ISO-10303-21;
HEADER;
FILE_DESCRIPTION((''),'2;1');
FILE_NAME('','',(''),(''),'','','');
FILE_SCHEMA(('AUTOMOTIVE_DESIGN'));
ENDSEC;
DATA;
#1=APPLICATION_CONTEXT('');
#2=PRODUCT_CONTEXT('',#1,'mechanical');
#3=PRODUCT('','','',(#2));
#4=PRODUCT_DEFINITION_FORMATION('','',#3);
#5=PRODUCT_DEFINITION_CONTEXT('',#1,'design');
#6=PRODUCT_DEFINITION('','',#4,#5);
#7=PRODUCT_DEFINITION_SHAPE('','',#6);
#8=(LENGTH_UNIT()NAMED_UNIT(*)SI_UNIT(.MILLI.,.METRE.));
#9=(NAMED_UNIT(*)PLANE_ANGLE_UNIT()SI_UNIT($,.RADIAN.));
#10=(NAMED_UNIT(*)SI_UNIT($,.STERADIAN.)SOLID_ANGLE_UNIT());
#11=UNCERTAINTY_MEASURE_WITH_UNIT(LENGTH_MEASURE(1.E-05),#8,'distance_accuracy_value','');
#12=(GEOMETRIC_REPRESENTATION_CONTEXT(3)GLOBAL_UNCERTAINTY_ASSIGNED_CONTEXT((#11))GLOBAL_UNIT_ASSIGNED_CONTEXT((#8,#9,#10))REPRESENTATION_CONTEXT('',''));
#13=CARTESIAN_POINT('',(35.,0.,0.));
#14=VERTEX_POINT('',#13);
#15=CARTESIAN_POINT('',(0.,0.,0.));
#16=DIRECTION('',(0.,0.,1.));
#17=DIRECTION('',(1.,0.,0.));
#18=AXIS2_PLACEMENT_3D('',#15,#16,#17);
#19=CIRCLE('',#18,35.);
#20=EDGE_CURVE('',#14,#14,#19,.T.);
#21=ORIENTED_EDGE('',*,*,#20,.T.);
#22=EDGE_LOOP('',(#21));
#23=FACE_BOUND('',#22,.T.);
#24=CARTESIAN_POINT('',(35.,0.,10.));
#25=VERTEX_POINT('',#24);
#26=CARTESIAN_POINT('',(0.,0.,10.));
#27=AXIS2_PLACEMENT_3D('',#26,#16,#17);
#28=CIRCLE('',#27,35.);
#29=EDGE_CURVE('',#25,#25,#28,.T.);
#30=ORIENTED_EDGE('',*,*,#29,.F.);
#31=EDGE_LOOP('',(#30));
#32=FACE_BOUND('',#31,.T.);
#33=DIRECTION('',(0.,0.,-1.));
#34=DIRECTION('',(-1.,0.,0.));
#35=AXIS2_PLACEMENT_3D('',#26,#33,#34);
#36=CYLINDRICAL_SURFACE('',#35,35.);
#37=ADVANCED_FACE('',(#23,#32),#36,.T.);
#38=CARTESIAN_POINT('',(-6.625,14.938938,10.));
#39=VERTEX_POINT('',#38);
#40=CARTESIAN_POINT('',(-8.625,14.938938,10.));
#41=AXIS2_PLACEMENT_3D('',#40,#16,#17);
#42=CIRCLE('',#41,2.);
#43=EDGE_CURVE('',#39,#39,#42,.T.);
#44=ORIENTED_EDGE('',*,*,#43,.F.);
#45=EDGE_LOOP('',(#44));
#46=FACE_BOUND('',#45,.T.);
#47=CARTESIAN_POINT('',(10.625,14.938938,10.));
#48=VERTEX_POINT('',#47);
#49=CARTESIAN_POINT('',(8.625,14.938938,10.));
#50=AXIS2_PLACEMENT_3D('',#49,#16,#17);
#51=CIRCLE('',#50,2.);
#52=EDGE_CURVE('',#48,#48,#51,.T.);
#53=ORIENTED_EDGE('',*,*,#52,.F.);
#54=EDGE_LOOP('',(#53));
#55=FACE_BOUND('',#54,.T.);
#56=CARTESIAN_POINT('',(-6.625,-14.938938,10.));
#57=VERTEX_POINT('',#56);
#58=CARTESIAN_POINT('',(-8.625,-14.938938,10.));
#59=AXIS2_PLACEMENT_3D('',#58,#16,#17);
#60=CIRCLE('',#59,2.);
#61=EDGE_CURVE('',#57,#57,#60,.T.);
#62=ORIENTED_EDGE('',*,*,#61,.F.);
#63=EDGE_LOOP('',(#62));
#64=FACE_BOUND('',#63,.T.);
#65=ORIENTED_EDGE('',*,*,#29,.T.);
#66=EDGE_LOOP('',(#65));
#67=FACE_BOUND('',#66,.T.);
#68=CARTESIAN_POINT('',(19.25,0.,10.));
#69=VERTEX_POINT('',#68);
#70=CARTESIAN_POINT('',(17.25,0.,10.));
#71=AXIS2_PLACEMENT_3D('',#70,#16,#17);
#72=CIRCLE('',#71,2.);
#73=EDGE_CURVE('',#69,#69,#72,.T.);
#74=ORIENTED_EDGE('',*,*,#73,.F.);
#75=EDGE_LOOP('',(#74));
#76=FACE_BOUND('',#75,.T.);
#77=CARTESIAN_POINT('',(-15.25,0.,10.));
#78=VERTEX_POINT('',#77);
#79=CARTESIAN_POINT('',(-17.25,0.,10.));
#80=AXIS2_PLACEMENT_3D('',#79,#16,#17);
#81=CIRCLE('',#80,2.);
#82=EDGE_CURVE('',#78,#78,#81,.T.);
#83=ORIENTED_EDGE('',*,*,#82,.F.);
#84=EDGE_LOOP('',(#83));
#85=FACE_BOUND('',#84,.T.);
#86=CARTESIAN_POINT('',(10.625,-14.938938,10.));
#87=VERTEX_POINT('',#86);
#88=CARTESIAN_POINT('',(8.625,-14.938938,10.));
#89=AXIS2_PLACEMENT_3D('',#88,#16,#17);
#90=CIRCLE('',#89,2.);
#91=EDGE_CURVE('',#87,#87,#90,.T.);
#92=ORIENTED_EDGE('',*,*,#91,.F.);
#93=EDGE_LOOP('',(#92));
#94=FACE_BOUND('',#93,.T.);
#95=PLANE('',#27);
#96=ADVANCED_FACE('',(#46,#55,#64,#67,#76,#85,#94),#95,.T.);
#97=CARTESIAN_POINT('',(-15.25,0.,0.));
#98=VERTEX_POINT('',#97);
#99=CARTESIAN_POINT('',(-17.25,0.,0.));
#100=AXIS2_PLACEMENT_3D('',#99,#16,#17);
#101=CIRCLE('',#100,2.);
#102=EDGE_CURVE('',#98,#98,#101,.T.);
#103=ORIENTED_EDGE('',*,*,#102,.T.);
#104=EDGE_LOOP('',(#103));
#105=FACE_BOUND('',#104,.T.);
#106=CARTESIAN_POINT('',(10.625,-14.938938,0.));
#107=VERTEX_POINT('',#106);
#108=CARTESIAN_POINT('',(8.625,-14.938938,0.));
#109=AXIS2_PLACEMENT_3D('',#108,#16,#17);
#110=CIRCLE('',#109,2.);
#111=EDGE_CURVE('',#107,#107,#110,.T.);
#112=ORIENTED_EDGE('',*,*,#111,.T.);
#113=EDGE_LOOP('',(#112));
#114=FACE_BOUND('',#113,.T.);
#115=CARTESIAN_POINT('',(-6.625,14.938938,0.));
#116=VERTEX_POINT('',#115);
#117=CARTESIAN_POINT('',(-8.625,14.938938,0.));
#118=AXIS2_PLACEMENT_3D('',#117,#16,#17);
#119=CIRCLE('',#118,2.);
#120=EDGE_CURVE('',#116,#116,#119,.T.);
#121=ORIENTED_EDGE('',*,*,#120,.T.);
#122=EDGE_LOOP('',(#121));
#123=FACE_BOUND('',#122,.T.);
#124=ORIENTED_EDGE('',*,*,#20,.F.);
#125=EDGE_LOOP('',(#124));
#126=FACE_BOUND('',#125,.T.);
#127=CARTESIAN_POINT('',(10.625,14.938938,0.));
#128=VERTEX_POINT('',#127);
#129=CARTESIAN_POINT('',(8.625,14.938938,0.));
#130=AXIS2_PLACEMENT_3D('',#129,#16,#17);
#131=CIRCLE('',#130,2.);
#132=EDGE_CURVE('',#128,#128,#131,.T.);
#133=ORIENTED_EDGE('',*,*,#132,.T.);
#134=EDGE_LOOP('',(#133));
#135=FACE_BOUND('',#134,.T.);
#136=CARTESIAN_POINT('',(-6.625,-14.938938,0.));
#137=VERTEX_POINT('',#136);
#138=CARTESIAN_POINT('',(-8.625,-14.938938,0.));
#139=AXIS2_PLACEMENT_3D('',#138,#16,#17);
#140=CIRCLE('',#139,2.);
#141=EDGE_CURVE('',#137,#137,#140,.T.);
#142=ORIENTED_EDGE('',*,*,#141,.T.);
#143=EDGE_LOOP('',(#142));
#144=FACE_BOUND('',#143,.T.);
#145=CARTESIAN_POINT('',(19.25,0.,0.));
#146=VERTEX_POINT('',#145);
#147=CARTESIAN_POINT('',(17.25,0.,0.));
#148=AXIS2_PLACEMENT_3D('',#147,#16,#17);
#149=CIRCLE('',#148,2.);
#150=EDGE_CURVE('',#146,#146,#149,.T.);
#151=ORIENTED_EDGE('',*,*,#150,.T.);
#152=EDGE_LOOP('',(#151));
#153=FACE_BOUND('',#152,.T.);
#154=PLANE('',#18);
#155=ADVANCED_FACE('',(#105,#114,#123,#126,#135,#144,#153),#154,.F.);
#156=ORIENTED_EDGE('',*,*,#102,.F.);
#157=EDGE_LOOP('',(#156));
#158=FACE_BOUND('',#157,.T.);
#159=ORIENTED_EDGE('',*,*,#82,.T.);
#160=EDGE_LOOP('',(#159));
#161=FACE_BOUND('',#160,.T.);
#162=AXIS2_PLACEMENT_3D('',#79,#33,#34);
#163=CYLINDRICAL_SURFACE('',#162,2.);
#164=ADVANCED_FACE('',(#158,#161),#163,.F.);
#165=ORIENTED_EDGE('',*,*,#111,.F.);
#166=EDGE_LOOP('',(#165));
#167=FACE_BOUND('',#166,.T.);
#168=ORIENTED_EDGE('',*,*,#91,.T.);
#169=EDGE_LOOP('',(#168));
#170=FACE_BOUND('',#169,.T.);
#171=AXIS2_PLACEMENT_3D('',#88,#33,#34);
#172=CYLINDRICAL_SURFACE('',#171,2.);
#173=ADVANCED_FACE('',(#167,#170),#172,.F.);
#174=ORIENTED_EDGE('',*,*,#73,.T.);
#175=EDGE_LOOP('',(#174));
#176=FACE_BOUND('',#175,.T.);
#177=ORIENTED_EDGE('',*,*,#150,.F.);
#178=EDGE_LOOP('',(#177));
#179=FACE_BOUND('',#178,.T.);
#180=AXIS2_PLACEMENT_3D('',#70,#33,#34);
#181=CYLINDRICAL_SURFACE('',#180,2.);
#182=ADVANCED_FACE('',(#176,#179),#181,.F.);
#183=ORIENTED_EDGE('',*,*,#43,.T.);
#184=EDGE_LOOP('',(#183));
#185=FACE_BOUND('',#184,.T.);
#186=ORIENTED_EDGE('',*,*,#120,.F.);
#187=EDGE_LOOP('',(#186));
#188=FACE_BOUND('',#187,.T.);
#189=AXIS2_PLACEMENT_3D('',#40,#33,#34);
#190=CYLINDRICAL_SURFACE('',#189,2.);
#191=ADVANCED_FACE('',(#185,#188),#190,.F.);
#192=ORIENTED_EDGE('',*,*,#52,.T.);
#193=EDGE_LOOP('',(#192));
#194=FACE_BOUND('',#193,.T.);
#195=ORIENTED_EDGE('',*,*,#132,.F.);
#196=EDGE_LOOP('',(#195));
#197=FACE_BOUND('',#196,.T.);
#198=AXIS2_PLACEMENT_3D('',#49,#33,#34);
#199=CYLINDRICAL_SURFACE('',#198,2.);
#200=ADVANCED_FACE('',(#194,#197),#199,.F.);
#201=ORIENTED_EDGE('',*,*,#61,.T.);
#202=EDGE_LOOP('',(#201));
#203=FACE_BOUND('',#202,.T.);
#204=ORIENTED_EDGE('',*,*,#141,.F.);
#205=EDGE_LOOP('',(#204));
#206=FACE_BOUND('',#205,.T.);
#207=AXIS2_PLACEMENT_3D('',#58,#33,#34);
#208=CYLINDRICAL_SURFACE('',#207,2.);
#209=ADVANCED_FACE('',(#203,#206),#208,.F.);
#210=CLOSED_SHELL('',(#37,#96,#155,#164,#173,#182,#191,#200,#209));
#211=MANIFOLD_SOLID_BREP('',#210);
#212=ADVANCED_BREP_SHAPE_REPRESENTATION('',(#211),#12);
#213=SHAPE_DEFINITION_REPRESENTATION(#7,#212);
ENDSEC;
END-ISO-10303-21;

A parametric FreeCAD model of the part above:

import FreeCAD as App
import Part
import Sketcher
from FreeCAD import Vector
Q = App.Units.Quantity

doc = App.newDocument("Part")
params = doc.addObject("Spreadsheet::Sheet", "Params")
for row, (alias, value) in enumerate([
    ("sketch1_diameter", "70 mm"),
    ("sketch1_diameter2", "4 mm"),
    ("pad1_length", "10 mm"),
], start=1):
    params.set(f"A{row}", alias)
    params.set(f"B{row}", "=" + value)
    params.setAlias(f"B{row}", alias)

body = doc.addObject("PartDesign::Body", "Body")

sketch1 = body.newObject("Sketcher::SketchObject", "Sketch")
sketch1.AttachmentSupport = (doc.getObject("XY_Plane"), [""])
sketch1.MapMode = "FlatFace"
sketch1.addGeometry([
    Part.Circle(Vector(0, 0, 0), Vector(0, 0, 1), 35),
    Part.Circle(Vector(-8.6, -14.9, 0), Vector(0, 0, 1), 2),
    Part.Circle(Vector(-17.2, 0, 0), Vector(0, 0, 1), 2),
    Part.Circle(Vector(8.6, -14.9, 0), Vector(0, 0, 1), 2),
    Part.Circle(Vector(17.2, 0, 0), Vector(0, 0, 1), 2),
    Part.Circle(Vector(-8.6, 14.9, 0), Vector(0, 0, 1), 2),
    Part.Circle(Vector(8.6, 14.9, 0), Vector(0, 0, 1), 2),
], False)
sketch1.addConstraint([
    Sketcher.Constraint("Coincident", 0, 3, -1, 1),
    Sketcher.Constraint("Equal", 1, 2),
    Sketcher.Constraint("Equal", 2, 3),
    Sketcher.Constraint("Equal", 3, 4),
    Sketcher.Constraint("Equal", 4, 5),
    Sketcher.Constraint("Equal", 5, 6),
    Sketcher.Constraint("Symmetric", 2, 3, 4, 3, -1, 1),
    Sketcher.Constraint("Symmetric", 3, 3, 5, 3, -1, 1),
    Sketcher.Constraint("Symmetric", 1, 3, 6, 3, -1, 1),
    Sketcher.Constraint("Symmetric", 1, 3, 3, 3, -2),
    Sketcher.Constraint("PointOnObject", 2, 3, -1),
    Sketcher.Constraint("Diameter", 0, Q("70 mm")),
    Sketcher.Constraint("Diameter", 1, Q("4 mm")),
    Sketcher.Constraint("DistanceX", 2, 3, 4, 3, Q("34.5 mm")),
    Sketcher.Constraint("DistanceX", 1, 3, 3, 3, Q("17.25 mm")),
    Sketcher.Constraint("DistanceY", 1, 3, -1, 1, Q("14.938938 mm")),
])
sketch1.setExpression("Constraints[11]", "Params.sketch1_diameter")
sketch1.setExpression("Constraints[12]", "Params.sketch1_diameter2")
pad1 = body.newObject("PartDesign::Pad", "Pad")
pad1.Profile = sketch1
pad1.setExpression("Length", "Params.pad1_length")

doc.recompute()
